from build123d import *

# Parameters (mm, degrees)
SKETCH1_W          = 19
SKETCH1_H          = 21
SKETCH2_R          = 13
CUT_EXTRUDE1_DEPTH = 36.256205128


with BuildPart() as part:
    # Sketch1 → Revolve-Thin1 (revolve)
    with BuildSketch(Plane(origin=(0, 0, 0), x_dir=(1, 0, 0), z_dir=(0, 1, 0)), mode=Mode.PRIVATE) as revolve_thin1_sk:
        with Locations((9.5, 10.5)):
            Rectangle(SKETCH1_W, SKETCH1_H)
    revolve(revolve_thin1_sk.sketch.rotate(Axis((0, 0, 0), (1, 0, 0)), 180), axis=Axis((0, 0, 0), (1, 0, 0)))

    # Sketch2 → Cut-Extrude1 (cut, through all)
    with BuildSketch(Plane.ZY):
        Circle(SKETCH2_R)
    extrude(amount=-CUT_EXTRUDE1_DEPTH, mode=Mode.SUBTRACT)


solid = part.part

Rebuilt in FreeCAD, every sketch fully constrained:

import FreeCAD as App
import Part
import Sketcher
from FreeCAD import Vector


def add_polygon(sketch, points):
    """Adds a closed chain of lines whose ends are joined by coincident constraints."""
    first, n = sketch.GeometryCount, len(points)
    for a, b in zip(points, points[1:] + points[:1]):
        sketch.addGeometry(Part.LineSegment(App.Vector(*a, 0), App.Vector(*b, 0)), False)
    for i in range(n):
        sketch.addConstraint(Sketcher.Constraint("Coincident", first + i, 2, first + (i + 1) % n, 1))

doc = App.newDocument("Part")
params = doc.addObject("Spreadsheet::Sheet", "Params")
for row, (alias, value) in enumerate([
    ("sketch1_width", "19 mm"),
    ("sketch1_height", "21 mm"),
    ("revolution_angle", "360 deg"),
    ("sketch2_diameter", "26 mm"),
], start=1):
    params.set(f"A{row}", alias)
    params.set(f"B{row}", "=" + value)
    params.setAlias(f"B{row}", alias)

body = doc.addObject("PartDesign::Body", "Body")

sketch1 = body.newObject("Sketcher::SketchObject", "Sketch")
sketch1.AttachmentSupport = (doc.getObject("XZ_Plane"), [""])
sketch1.MapMode = "FlatFace"
add_polygon(sketch1, [(0, -21), (0, 0), (19, 0), (19, -21)])
sketch1.addConstraint(Sketcher.Constraint("Vertical", 0))
sketch1.addConstraint(Sketcher.Constraint("Horizontal", 1))
sketch1.addConstraint(Sketcher.Constraint("Vertical", 2))
sketch1.addConstraint(Sketcher.Constraint("Horizontal", 3))
sketch1.addConstraint(Sketcher.Constraint("Coincident", 0, 2, -1, 1))
sketch1.addConstraint(Sketcher.Constraint("DistanceX", 1, 1, 1, 2, 19.0))
sketch1.addConstraint(Sketcher.Constraint("DistanceY", 0, 1, 0, 2, 21.0))
sketch1.setExpression("Constraints[9]", "Params.sketch1_width")
sketch1.setExpression("Constraints[10]", "Params.sketch1_height")
revolution = body.newObject("PartDesign::Revolution", "Revolution")
revolution.Profile = sketch1
revolution.ReferenceAxis = (sketch1, ["H_Axis"])
revolution.setExpression("Angle", "Params.revolution_angle")

sketch2 = body.newObject("Sketcher::SketchObject", "Sketch001")
sketch2.AttachmentSupport = (doc.getObject("YZ_Plane"), [""])
sketch2.MapMode = "FlatFace"
sketch2.addGeometry(Part.Circle(Vector(0, 0, 0), Vector(0, 0, 1), 13), False)
sketch2.addConstraint(Sketcher.Constraint("Coincident", 0, 3, -1, 1))
sketch2.addConstraint(Sketcher.Constraint("Diameter", 0, 26.0))
sketch2.setExpression("Constraints[1]", "Params.sketch2_diameter")
pocket1 = body.newObject("PartDesign::Pocket", "Pocket")
pocket1.Profile = sketch2
pocket1.Type = "ThroughAll"
pocket1.Reversed = True

doc.recompute()
